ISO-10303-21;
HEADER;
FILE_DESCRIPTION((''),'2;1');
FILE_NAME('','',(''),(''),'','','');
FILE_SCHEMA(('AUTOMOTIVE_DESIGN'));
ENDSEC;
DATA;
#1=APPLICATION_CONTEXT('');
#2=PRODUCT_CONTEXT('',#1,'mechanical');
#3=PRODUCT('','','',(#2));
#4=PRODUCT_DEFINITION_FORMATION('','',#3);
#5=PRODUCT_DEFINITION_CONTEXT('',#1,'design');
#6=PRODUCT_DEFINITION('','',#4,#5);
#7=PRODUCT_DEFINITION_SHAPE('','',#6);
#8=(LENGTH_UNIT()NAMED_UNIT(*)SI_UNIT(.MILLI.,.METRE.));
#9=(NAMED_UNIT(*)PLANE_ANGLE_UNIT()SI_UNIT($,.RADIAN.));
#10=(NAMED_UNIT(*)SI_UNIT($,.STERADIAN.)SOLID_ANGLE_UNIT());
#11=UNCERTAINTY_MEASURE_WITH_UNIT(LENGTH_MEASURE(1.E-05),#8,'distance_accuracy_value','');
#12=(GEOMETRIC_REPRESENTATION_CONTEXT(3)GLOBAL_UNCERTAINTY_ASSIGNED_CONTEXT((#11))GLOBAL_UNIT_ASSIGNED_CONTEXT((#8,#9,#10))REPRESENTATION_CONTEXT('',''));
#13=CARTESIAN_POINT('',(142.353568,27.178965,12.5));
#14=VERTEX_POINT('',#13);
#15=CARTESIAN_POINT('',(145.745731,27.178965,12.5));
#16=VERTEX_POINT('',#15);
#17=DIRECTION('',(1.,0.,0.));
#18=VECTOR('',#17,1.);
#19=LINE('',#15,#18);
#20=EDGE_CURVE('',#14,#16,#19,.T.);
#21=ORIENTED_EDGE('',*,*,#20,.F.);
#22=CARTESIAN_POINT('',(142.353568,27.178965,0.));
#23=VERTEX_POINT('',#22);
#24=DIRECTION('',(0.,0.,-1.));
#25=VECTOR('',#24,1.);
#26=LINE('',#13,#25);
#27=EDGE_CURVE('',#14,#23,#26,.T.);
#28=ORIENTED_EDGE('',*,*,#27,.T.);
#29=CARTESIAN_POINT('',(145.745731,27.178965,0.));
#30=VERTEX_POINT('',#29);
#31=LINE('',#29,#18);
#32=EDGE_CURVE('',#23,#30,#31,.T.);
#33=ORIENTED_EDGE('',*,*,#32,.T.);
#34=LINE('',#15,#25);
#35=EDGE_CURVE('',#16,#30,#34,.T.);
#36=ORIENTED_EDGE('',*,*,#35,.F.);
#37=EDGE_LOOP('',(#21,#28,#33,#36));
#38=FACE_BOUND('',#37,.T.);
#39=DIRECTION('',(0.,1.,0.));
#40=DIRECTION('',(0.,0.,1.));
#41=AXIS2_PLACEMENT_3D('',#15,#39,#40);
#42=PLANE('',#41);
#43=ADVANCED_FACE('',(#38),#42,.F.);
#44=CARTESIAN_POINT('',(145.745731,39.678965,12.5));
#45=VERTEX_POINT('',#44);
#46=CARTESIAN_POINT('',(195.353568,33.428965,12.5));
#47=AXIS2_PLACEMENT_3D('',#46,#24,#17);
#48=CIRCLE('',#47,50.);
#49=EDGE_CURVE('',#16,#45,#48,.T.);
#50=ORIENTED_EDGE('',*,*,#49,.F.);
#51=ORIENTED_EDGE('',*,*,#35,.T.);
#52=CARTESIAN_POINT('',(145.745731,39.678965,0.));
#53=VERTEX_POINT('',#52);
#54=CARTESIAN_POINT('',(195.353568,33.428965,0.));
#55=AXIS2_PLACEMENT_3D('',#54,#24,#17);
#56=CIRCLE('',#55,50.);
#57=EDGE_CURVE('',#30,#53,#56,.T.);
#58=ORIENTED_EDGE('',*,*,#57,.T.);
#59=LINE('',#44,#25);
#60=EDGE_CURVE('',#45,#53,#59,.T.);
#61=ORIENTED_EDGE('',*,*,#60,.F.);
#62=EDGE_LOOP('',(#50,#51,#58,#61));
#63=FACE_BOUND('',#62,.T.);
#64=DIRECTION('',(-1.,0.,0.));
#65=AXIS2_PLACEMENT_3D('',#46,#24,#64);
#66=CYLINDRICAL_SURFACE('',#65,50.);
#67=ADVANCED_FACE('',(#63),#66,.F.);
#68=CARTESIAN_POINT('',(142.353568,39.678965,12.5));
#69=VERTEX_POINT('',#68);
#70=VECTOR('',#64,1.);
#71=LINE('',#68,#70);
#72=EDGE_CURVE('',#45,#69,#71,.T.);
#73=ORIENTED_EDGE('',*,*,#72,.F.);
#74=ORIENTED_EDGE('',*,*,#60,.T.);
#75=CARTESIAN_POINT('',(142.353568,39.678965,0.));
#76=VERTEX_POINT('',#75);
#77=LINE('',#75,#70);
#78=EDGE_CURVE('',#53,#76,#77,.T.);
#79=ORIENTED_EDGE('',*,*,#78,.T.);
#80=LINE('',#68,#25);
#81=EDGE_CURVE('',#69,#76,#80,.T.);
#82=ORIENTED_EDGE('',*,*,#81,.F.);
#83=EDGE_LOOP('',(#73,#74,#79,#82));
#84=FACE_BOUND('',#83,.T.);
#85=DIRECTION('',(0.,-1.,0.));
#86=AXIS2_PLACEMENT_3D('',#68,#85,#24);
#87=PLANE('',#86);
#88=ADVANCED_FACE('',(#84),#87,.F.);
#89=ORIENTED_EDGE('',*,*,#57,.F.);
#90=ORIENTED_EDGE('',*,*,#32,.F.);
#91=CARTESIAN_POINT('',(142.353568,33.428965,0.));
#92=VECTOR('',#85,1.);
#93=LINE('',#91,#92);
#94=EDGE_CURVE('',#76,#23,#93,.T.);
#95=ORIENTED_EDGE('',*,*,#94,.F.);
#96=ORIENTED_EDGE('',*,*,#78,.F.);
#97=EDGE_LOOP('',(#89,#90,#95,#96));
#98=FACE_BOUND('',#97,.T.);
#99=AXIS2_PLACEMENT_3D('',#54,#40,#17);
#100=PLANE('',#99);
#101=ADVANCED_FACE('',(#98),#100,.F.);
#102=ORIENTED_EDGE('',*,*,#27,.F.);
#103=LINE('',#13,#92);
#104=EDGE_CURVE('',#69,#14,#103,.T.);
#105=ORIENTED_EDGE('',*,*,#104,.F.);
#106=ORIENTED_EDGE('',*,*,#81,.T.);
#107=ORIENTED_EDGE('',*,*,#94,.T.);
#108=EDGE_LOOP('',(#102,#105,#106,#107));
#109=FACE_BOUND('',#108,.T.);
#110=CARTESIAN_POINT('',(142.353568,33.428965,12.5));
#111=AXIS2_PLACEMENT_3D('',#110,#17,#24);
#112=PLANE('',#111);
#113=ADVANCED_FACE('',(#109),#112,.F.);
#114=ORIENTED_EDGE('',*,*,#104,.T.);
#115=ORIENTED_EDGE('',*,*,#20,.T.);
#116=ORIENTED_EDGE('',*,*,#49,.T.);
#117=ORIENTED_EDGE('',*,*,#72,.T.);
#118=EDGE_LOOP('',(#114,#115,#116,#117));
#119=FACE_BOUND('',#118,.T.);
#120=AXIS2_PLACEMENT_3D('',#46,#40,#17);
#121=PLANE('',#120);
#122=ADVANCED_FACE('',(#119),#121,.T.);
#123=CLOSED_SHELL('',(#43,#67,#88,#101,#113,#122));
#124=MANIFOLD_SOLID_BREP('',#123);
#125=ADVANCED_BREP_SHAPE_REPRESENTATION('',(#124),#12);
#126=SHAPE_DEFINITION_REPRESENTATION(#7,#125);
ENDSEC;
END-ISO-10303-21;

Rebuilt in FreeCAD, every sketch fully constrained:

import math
import FreeCAD as App
import Part
import Sketcher
from FreeCAD import Vector
Q = App.Units.Quantity

doc = App.newDocument("Part")
body = doc.addObject("PartDesign::Body", "Body")

# Sketch on XY plane
sketch1 = body.newObject("Sketcher::SketchObject", "Sketch")
sketch1.AttachmentSupport = (doc.getObject("XY_Plane"), [""])
sketch1.MapMode = "FlatFace"
sketch1.addGeometry([
    Part.LineSegment(Vector(145.745731, 39.678965, 0), Vector(142.353568, 39.678965, 0)),
    Part.LineSegment(Vector(142.353568, 39.678965, 0), Vector(142.353568, 27.178965, 0)),
    Part.LineSegment(Vector(142.353568, 27.178965, 0), Vector(145.745731, 27.178965, 0)),
    Part.ArcOfCircle(Part.Circle(Vector(195.353568, 33.428965, 0), Vector(0, 0, 1), 50), math.radians(172.819244), math.radians(187.180756)),
], False)
sketch1.addConstraint([
    Sketcher.Constraint("Coincident", 0, 2, 1, 1),
    Sketcher.Constraint("Coincident", 1, 2, 2, 1),
    Sketcher.Constraint("Coincident", 2, 2, 3, 2),
    Sketcher.Constraint("Coincident", 3, 1, 0, 1),
    Sketcher.Constraint("Horizontal", 0),
    Sketcher.Constraint("Vertical", 1),
    Sketcher.Constraint("Horizontal", 2),
    Sketcher.Constraint("Vertical", 2, 2, 3, 1),
    Sketcher.Constraint("Radius", 3, Q("50 mm")),
    Sketcher.Constraint("DistanceY", 1, 2, 1, 1, Q("12.5 mm")),
    Sketcher.Constraint("DistanceX", 0, 2, 3, 3, Q("53 mm")),
    Sketcher.Constraint("DistanceX", -1, 1, 2, 2, Q("145.745731 mm")),
    Sketcher.Constraint("DistanceY", -1, 1, 3, 3, Q("33.428965 mm")),
])
pad1 = body.newObject("PartDesign::Pad", "Pad")
pad1.Profile = sketch1
pad1.Length = 12.5

doc.recompute()
